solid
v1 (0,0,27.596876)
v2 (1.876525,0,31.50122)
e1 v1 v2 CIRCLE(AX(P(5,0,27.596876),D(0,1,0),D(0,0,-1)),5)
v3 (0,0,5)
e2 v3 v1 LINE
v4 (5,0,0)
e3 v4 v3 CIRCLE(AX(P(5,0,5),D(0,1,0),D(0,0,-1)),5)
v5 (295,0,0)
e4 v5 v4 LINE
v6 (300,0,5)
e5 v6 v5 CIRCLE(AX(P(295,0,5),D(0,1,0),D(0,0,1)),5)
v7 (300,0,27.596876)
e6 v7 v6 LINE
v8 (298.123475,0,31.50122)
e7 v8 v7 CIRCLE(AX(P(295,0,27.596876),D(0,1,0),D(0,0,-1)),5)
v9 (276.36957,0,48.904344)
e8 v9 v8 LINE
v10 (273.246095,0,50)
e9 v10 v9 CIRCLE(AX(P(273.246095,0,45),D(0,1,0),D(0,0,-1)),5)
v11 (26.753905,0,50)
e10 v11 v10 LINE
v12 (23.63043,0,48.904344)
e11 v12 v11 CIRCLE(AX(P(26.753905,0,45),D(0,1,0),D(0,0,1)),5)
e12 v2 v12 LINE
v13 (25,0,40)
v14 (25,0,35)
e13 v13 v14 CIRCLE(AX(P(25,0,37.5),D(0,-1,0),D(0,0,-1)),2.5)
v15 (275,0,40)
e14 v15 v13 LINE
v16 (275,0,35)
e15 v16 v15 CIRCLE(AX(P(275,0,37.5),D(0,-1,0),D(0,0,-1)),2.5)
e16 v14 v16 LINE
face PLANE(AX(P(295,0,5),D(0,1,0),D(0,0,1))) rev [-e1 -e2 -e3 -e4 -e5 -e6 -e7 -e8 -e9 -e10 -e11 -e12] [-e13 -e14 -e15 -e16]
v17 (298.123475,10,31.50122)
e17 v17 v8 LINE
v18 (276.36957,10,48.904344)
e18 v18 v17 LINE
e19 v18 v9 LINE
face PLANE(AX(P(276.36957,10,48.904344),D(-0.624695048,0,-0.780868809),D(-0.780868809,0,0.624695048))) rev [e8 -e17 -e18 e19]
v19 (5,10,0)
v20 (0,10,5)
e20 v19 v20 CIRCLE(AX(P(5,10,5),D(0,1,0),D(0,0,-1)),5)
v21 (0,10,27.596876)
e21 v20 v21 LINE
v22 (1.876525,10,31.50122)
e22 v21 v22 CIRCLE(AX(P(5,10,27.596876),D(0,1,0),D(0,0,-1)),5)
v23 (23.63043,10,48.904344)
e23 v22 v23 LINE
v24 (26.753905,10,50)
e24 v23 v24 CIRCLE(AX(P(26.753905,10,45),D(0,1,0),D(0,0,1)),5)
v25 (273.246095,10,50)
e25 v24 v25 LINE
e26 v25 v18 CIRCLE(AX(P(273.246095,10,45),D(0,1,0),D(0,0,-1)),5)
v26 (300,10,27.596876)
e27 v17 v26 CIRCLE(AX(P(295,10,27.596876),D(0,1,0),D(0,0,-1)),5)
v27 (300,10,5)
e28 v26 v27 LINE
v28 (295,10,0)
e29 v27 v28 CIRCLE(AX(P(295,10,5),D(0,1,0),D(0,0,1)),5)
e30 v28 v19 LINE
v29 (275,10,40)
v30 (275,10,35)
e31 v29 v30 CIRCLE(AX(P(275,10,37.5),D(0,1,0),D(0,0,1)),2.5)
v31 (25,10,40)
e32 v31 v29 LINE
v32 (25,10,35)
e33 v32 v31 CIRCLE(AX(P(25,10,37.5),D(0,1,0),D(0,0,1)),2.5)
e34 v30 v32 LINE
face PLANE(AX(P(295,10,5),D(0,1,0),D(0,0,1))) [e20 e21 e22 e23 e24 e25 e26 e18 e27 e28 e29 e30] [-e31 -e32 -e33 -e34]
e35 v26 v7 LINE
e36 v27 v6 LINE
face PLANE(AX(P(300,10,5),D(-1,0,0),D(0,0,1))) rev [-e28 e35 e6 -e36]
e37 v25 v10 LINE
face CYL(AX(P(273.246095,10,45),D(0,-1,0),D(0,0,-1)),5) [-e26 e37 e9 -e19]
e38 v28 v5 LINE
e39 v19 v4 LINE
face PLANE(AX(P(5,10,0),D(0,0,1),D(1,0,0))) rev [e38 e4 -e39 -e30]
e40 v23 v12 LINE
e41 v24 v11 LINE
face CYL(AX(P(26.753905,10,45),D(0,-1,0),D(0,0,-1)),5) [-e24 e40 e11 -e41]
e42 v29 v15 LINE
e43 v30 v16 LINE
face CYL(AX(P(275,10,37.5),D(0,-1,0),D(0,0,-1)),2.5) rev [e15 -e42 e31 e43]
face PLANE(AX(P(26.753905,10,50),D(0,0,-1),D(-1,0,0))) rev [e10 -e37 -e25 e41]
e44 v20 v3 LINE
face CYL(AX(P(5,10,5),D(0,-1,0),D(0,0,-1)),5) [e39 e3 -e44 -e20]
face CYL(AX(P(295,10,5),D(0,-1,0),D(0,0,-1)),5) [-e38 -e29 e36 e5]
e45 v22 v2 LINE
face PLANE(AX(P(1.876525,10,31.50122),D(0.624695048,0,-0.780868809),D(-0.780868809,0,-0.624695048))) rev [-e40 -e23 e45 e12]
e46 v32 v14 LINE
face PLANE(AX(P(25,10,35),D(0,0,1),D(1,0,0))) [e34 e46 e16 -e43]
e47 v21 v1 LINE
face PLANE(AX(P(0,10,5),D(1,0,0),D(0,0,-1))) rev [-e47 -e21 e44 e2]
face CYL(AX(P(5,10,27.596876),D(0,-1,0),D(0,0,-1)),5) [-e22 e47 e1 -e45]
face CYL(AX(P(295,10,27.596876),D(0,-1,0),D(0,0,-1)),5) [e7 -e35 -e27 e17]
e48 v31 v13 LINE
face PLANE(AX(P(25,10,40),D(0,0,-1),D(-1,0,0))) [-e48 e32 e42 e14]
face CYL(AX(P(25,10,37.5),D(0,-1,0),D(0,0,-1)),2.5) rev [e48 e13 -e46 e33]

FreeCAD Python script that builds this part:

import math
import FreeCAD as App
import Part
import Sketcher
from FreeCAD import Vector

doc = App.newDocument("Part")
body = doc.addObject("PartDesign::Body", "Body")

sketch1 = body.newObject("Sketcher::SketchObject", "Sketch")
sketch1.AttachmentSupport = (doc.getObject("XZ_Plane"), [""])
sketch1.MapMode = "FlatFace"
sketch1.addGeometry([
    Part.LineSegment(Vector(0, 5, 0), Vector(0, 27.6, 0)),
    Part.ArcOfCircle(Part.Circle(Vector(5, 27.6, 0), Vector(0, 0, 1), 5), math.radians(129), math.radians(180)),
    Part.LineSegment(Vector(1.9, 31.5, 0), Vector(23.6, 48.9, 0)),
    Part.ArcOfCircle(Part.Circle(Vector(26.8, 45, 0), Vector(0, 0, 1), 5), math.radians(90), math.radians(129)),
    Part.LineSegment(Vector(26.8, 50, 0), Vector(273.2, 50, 0)),
    Part.ArcOfCircle(Part.Circle(Vector(273.2, 45, 0), Vector(0, 0, 1), 5), math.radians(51), math.radians(90)),
    Part.LineSegment(Vector(276.4, 48.9, 0), Vector(298.1, 31.5, 0)),
    Part.ArcOfCircle(Part.Circle(Vector(295, 27.6, 0), Vector(0, 0, 1), 5), math.radians(0), math.radians(51)),
    Part.LineSegment(Vector(300, 27.6, 0), Vector(300, 5, 0)),
    Part.ArcOfCircle(Part.Circle(Vector(295, 5, 0), Vector(0, 0, 1), 5), math.radians(-90), math.radians(0)),
    Part.LineSegment(Vector(295, 0, 0), Vector(5, 0, 0)),
    Part.ArcOfCircle(Part.Circle(Vector(5, 5, 0), Vector(0, 0, 1), 5), math.radians(180), math.radians(270)),
], False)
sketch1.addConstraint([
    Sketcher.Constraint("Tangent", 0, 2, 1, 2),
    Sketcher.Constraint("Tangent", 1, 1, 2, 1),
    Sketcher.Constraint("Tangent", 2, 2, 3, 2),
    Sketcher.Constraint("Tangent", 3, 1, 4, 1),
    Sketcher.Constraint("Tangent", 4, 2, 5, 2),
    Sketcher.Constraint("Tangent", 5, 1, 6, 1),
    Sketcher.Constraint("Tangent", 6, 2, 7, 2),
    Sketcher.Constraint("Tangent", 7, 1, 8, 1),
    Sketcher.Constraint("Tangent", 8, 2, 9, 2),
    Sketcher.Constraint("Tangent", 9, 1, 10, 1),
    Sketcher.Constraint("Tangent", 10, 2, 11, 2),
    Sketcher.Constraint("Tangent", 11, 1, 0, 1),
    Sketcher.Constraint("Vertical", 0),
    Sketcher.Constraint("Horizontal", 4),
    Sketcher.Constraint("Vertical", 8),
    Sketcher.Constraint("Horizontal", 10),
    Sketcher.Constraint("Equal", 1, 3),
    Sketcher.Constraint("Equal", 3, 5),
    Sketcher.Constraint("Equal", 5, 7),
    Sketcher.Constraint("Equal", 7, 9),
    Sketcher.Constraint("Equal", 9, 11),
    Sketcher.Constraint("PointOnObject", 0, 2, -2),
    Sketcher.Constraint("PointOnObject", 9, 1, -1),
    Sketcher.Constraint("Horizontal", 1, 3, 7, 3),
    Sketcher.Constraint("Horizontal", 2, 2, 5, 1),
    Sketcher.Constraint("Radius", 1, 5.0),
    Sketcher.Constraint("DistanceX", 10, 2, 10, 1, 290.0),
    Sketcher.Constraint("DistanceY", -1, 1, 3, 3, 45.0),
    Sketcher.Constraint("DistanceX", 4, 1, 4, 2, 246.492189),
    Sketcher.Constraint("Distance", 2, 27.858592),
])
pad1 = body.newObject("PartDesign::Pad", "Pad")
pad1.Profile = sketch1
pad1.Length = 10
pad1.Reversed = True

sketch2 = body.newObject("Sketcher::SketchObject", "Sketch001")
sketch2.AttachmentSupport = (doc.getObject("XZ_Plane"), [""])
sketch2.MapMode = "FlatFace"
sketch2.addGeometry([
    Part.LineSegment(Vector(275, 35, 0), Vector(25, 35, 0)),
    Part.ArcOfCircle(Part.Circle(Vector(25, 37.5, 0), Vector(0, 0, 1), 2.5), math.radians(90), math.radians(270)),
    Part.LineSegment(Vector(25, 40, 0), Vector(275, 40, 0)),
    Part.ArcOfCircle(Part.Circle(Vector(275, 37.5, 0), Vector(0, 0, 1), 2.5), math.radians(-90), math.radians(90)),
], False)
sketch2.addConstraint([
    Sketcher.Constraint("Tangent", 0, 2, 1, 2),
    Sketcher.Constraint("Tangent", 1, 1, 2, 1),
    Sketcher.Constraint("Tangent", 2, 2, 3, 2),
    Sketcher.Constraint("Tangent", 3, 1, 0, 1),
    Sketcher.Constraint("Horizontal", 0),
    Sketcher.Constraint("Horizontal", 2),
    Sketcher.Constraint("Radius", 1, 2.5),
    Sketcher.Constraint("DistanceX", 0, 2, 0, 1, 250.0),
    Sketcher.Constraint("DistanceX", -1, 1, 1, 3, 25.0),
    Sketcher.Constraint("DistanceY", -1, 1, 0, 2, 35.0),
])
pocket1 = body.newObject("PartDesign::Pocket", "Pocket")
pocket1.Profile = sketch2
pocket1.Type = "ThroughAll"
pocket1.Midplane = True

doc.recompute()
